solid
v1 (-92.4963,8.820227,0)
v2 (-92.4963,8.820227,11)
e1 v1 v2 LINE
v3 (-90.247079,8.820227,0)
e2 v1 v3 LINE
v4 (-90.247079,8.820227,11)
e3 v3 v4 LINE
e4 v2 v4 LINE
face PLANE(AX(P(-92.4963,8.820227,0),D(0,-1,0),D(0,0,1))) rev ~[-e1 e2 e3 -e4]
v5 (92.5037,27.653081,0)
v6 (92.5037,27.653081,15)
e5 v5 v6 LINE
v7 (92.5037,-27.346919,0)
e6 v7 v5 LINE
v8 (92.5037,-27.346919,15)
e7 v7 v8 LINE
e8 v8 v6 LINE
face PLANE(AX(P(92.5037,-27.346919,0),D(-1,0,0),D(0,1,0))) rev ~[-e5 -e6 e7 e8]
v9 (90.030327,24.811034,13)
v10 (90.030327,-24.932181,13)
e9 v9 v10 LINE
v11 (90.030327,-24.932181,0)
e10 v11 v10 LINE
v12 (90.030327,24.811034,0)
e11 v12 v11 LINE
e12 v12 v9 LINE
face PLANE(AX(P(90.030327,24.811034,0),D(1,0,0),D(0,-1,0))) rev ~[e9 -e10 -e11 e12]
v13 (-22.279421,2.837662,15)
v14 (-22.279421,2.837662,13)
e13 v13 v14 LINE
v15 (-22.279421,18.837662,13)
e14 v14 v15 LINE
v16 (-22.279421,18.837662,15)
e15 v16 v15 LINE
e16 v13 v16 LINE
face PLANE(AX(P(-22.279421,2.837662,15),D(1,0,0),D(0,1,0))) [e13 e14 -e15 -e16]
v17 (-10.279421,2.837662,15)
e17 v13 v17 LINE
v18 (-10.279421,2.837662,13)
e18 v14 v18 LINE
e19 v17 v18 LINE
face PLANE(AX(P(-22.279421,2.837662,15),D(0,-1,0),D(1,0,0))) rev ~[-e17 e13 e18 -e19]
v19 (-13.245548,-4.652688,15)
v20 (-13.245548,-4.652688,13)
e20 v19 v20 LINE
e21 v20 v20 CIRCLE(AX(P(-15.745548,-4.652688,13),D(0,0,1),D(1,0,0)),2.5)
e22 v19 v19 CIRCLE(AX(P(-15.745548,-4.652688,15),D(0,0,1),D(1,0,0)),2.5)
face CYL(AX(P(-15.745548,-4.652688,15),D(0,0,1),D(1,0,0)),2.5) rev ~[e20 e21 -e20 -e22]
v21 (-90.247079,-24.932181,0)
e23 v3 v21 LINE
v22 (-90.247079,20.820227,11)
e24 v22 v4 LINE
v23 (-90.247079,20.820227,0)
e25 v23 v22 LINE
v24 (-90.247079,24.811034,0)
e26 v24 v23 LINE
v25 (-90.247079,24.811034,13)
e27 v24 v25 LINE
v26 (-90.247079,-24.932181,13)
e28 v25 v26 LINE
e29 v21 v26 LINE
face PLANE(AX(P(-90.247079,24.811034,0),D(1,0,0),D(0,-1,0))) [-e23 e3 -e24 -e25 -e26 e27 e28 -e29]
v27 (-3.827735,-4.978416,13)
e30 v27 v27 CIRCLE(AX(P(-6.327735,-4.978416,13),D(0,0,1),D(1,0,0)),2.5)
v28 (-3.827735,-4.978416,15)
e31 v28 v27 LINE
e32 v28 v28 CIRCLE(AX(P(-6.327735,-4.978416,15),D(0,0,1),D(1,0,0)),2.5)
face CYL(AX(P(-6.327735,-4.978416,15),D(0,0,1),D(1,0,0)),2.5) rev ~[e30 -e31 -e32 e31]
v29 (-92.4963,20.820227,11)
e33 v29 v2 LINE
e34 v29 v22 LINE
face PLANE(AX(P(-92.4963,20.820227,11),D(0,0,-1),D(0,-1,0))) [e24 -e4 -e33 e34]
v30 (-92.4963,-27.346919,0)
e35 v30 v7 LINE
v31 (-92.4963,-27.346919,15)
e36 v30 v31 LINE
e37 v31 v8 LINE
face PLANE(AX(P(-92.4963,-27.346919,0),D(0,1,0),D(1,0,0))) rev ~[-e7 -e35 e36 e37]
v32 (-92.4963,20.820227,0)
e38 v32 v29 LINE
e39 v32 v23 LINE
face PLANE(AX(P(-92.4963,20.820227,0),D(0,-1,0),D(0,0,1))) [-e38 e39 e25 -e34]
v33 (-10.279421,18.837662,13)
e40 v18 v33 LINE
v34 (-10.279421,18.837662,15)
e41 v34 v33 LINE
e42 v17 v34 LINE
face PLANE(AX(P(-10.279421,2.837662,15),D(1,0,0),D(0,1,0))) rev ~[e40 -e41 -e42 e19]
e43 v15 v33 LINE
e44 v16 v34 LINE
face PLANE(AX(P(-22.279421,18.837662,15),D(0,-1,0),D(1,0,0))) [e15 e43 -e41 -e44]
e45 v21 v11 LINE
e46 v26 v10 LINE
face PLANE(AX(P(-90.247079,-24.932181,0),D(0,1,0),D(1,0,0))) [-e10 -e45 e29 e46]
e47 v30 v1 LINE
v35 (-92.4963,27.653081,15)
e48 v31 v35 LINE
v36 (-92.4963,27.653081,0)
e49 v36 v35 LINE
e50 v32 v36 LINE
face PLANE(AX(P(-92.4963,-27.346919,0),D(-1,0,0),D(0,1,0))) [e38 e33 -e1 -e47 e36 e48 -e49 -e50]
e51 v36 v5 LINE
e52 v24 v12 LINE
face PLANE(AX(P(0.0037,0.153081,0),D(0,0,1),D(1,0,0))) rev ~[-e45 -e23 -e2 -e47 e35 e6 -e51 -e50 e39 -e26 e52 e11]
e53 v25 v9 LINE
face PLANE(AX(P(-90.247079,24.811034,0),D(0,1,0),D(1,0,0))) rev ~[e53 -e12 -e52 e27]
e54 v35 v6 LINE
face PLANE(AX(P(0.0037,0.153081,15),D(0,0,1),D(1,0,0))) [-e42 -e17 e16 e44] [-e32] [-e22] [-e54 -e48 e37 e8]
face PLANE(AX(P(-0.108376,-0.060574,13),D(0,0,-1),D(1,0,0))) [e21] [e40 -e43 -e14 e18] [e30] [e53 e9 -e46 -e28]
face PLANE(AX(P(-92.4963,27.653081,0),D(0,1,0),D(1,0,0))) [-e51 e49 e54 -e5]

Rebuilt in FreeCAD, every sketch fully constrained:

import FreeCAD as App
import Part
import Sketcher
from FreeCAD import Vector

doc = App.newDocument("Part")
body = doc.addObject("PartDesign::Body", "Body")

sketch1 = body.newObject("Sketcher::SketchObject", "Sketch")
sketch1.AttachmentSupport = (doc.getObject("XY_Plane"), [""])
sketch1.MapMode = "FlatFace"
sketch1.addGeometry([
    Part.LineSegment(Vector(-92, 28, 0), Vector(-92, -27, 0)),
    Part.LineSegment(Vector(-92, -27, 0), Vector(93, -27, 0)),
    Part.LineSegment(Vector(93, -27, 0), Vector(93, 28, 0)),
    Part.LineSegment(Vector(93, 28, 0), Vector(-92, 28, 0)),
], False)
sketch1.addConstraint([
    Sketcher.Constraint("Coincident", 0, 2, 1, 1),
    Sketcher.Constraint("Coincident", 1, 2, 2, 1),
    Sketcher.Constraint("Coincident", 2, 2, 3, 1),
    Sketcher.Constraint("Coincident", 3, 2, 0, 1),
    Sketcher.Constraint("Vertical", 0),
    Sketcher.Constraint("Horizontal", 1),
    Sketcher.Constraint("Vertical", 2),
    Sketcher.Constraint("Horizontal", 3),
    Sketcher.Constraint("DistanceX", 1, 1, 1, 2, 185.0),
    Sketcher.Constraint("DistanceY", 0, 2, 0, 1, 55.0),
    Sketcher.Constraint("DistanceX", 0, 2, -1, 1, 92.4963),
    Sketcher.Constraint("DistanceY", 0, 2, -1, 1, 27.346919),
])
pad1 = body.newObject("PartDesign::Pad", "Pad")
pad1.Profile = sketch1
pad1.Length = 15

sketch2 = body.newObject("Sketcher::SketchObject", "Sketch001")
sketch2.AttachmentSupport = (doc.getObject("XY_Plane"), [""])
sketch2.MapMode = "FlatFace"
sketch2.AttachmentOffset = App.Placement(Vector(0, 0, 15), App.Rotation())
sketch2.addGeometry([
    Part.Circle(Vector(-15.7, -4.7, 0), Vector(0, 0, 1), 2.5),
    Part.Circle(Vector(-6.3, -5, 0), Vector(0, 0, 1), 2.5),
    Part.LineSegment(Vector(-22.3, 18.8, 0), Vector(-22.3, 2.8, 0)),
    Part.LineSegment(Vector(-22.3, 2.8, 0), Vector(-10.3, 2.8, 0)),
    Part.LineSegment(Vector(-10.3, 2.8, 0), Vector(-10.3, 18.8, 0)),
    Part.LineSegment(Vector(-10.3, 18.8, 0), Vector(-22.3, 18.8, 0)),
], False)
sketch2.addConstraint([
    Sketcher.Constraint("Coincident", 2, 2, 3, 1),
    Sketcher.Constraint("Coincident", 3, 2, 4, 1),
    Sketcher.Constraint("Coincident", 4, 2, 5, 1),
    Sketcher.Constraint("Coincident", 5, 2, 2, 1),
    Sketcher.Constraint("Vertical", 2),
    Sketcher.Constraint("Horizontal", 3),
    Sketcher.Constraint("Vertical", 4),
    Sketcher.Constraint("Horizontal", 5),
    Sketcher.Constraint("Equal", 0, 1),
    Sketcher.Constraint("Diameter", 0, 5.0),
    Sketcher.Constraint("DistanceX", 3, 1, 3, 2, 12.0),
    Sketcher.Constraint("DistanceY", 2, 2, 2, 1, 16.0),
    Sketcher.Constraint("DistanceY", 0, 3, -1, 1, 4.652688),
    Sketcher.Constraint("DistanceX", 2, 2, -1, 1, 22.279421),
    Sketcher.Constraint("DistanceY", -1, 1, 2, 2, 2.837662),
    Sketcher.Constraint("DistanceY", 1, 3, 4, 2, 23.816078),
    Sketcher.Constraint("DistanceX", 0, 3, -1, 1, 15.745548),
    Sketcher.Constraint("DistanceX", 1, 3, -1, 1, 6.327735),
])
pocket1 = body.newObject("PartDesign::Pocket", "Pocket")
pocket1.Profile = sketch2
pocket1.Length = 5

sketch3 = body.newObject("Sketcher::SketchObject", "Sketch002")
sketch3.AttachmentSupport = (doc.getObject("YZ_Plane"), [""])
sketch3.MapMode = "FlatFace"
sketch3.AttachmentOffset = App.Placement(Vector(0, 0, -92.4963), App.Rotation())
sketch3.addGeometry([
    Part.LineSegment(Vector(21, 11, 0), Vector(21, 0, 0)),
    Part.LineSegment(Vector(21, 0, 0), Vector(9, 0, 0)),
    Part.LineSegment(Vector(9, 0, 0), Vector(9, 11, 0)),
    Part.LineSegment(Vector(9, 11, 0), Vector(21, 11, 0)),
], False)
sketch3.addConstraint([
    Sketcher.Constraint("Coincident", 0, 2, 1, 1),
    Sketcher.Constraint("Coincident", 1, 2, 2, 1),
    Sketcher.Constraint("Coincident", 2, 2, 3, 1),
    Sketcher.Constraint("Coincident", 3, 2, 0, 1),
    Sketcher.Constraint("Vertical", 0),
    Sketcher.Constraint("Horizontal", 1),
    Sketcher.Constraint("Vertical", 2),
    Sketcher.Constraint("Horizontal", 3),
    Sketcher.Constraint("PointOnObject", 0, 2, -1),
    Sketcher.Constraint("DistanceX", 1, 2, 1, 1, 12.0),
    Sketcher.Constraint("DistanceY", 0, 2, 0, 1, 11.0),
    Sketcher.Constraint("DistanceX", -1, 1, 0, 2, 20.820227),
])
pocket2 = body.newObject("PartDesign::Pocket", "Pocket001")
pocket2.Profile = sketch3
pocket2.Length = 5
pocket2.Reversed = True

sketch4 = body.newObject("Sketcher::SketchObject", "Sketch003")
sketch4.AttachmentSupport = (doc.getObject("XY_Plane"), [""])
sketch4.MapMode = "FlatFace"
sketch4.addGeometry([
    Part.LineSegment(Vector(-90, -25, 0), Vector(-90, 25, 0)),
    Part.LineSegment(Vector(-90, 25, 0), Vector(90, 25, 0)),
    Part.LineSegment(Vector(90, 25, 0), Vector(90, -25, 0)),
    Part.LineSegment(Vector(90, -25, 0), Vector(-90, -25, 0)),
], False)
sketch4.addConstraint([
    Sketcher.Constraint("Coincident", 0, 2, 1, 1),
    Sketcher.Constraint("Coincident", 1, 2, 2, 1),
    Sketcher.Constraint("Coincident", 2, 2, 3, 1),
    Sketcher.Constraint("Coincident", 3, 2, 0, 1),
    Sketcher.Constraint("Vertical", 0),
    Sketcher.Constraint("Horizontal", 1),
    Sketcher.Constraint("Vertical", 2),
    Sketcher.Constraint("Horizontal", 3),
    Sketcher.Constraint("DistanceX", 1, 1, 1, 2, 180.277405),
    Sketcher.Constraint("DistanceY", 0, 1, 0, 2, 49.743215),
    Sketcher.Constraint("DistanceX", 0, 2, -1, 1, 90.247079),
    Sketcher.Constraint("DistanceY", 2, 2, -1, 1, 24.932181),
])
pocket3 = body.newObject("PartDesign::Pocket", "Pocket002")
pocket3.Profile = sketch4
pocket3.Length = 13
pocket3.Reversed = True

doc.recompute()
